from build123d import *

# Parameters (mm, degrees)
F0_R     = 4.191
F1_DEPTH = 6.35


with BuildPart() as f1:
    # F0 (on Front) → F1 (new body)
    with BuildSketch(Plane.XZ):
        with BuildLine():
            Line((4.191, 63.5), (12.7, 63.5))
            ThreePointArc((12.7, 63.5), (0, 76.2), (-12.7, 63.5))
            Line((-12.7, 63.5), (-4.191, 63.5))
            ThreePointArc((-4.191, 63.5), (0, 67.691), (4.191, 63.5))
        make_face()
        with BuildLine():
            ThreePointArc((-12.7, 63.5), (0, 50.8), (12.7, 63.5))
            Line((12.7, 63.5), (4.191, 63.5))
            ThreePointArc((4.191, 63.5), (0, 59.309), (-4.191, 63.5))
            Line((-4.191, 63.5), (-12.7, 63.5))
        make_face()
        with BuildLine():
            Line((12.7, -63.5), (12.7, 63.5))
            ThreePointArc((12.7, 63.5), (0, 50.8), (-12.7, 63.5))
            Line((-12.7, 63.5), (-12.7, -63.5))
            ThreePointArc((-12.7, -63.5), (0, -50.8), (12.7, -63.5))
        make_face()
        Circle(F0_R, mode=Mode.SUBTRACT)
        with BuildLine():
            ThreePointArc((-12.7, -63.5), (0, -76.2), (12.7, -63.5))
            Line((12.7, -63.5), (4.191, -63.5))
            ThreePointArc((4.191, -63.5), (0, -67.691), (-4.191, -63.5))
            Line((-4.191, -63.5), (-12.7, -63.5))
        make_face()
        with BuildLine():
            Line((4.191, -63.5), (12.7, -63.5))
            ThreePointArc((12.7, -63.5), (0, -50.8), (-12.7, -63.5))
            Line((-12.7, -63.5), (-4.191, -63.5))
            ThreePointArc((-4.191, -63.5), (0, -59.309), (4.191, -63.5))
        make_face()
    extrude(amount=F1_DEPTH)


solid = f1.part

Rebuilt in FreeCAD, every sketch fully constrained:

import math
import FreeCAD as App
import Part
import Sketcher
Q = App.Units.Quantity

doc = App.newDocument("Part")
body = doc.addObject("PartDesign::Body", "Body")

sketch1 = body.newObject("Sketcher::SketchObject", "Sketch")
sketch1.AttachmentSupport = (doc.getObject("XZ_Plane"), [""])
sketch1.MapMode = "FlatFace"
sketch1.addGeometry([
    Part.ArcOfCircle(Part.Circle(App.Vector(0, 63.5, 0), App.Vector(0, 0, 1), 12.7), math.radians(0), math.radians(180)),
    Part.LineSegment(App.Vector(-12.7, 63.5, 0), App.Vector(-12.7, -63.5, 0)),
    Part.ArcOfCircle(Part.Circle(App.Vector(0, -63.5, 0), App.Vector(0, 0, 1), 12.7), math.radians(180), math.radians(360)),
    Part.LineSegment(App.Vector(12.7, -63.5, 0), App.Vector(12.7, 63.5, 0)),
    Part.Circle(App.Vector(0, 0, 0), App.Vector(0, 0, 1), 4.2),
    Part.Circle(App.Vector(0, 63.5, 0), App.Vector(0, 0, 1), 4.2),
    Part.Circle(App.Vector(0, -63.5, 0), App.Vector(0, 0, 1), 4.2),
], False)
sketch1.addConstraint([
    Sketcher.Constraint("Tangent", 0, 2, 1, 1),
    Sketcher.Constraint("Tangent", 1, 2, 2, 1),
    Sketcher.Constraint("Tangent", 2, 2, 3, 1),
    Sketcher.Constraint("Tangent", 3, 2, 0, 1),
    Sketcher.Constraint("Vertical", 1),
    Sketcher.Constraint("Vertical", 3),
    Sketcher.Constraint("Coincident", 4, 3, -1, 1),
    Sketcher.Constraint("Coincident", 5, 3, 0, 3),
    Sketcher.Constraint("Coincident", 6, 3, 2, 3),
    Sketcher.Constraint("Equal", 4, 5),
    Sketcher.Constraint("Equal", 5, 6),
    Sketcher.Constraint("Symmetric", 0, 3, 2, 3, -1, 1),
    Sketcher.Constraint("Radius", 0, Q("0.5 in")),
    Sketcher.Constraint("Diameter", 4, Q("0.33 in")),
    Sketcher.Constraint("DistanceY", 1, 2, 1, 1, Q("5 in")),
])
pad1 = body.newObject("PartDesign::Pad", "Pad")
pad1.Profile = sketch1
pad1.Length = Q("0.25 in")

doc.recompute()
